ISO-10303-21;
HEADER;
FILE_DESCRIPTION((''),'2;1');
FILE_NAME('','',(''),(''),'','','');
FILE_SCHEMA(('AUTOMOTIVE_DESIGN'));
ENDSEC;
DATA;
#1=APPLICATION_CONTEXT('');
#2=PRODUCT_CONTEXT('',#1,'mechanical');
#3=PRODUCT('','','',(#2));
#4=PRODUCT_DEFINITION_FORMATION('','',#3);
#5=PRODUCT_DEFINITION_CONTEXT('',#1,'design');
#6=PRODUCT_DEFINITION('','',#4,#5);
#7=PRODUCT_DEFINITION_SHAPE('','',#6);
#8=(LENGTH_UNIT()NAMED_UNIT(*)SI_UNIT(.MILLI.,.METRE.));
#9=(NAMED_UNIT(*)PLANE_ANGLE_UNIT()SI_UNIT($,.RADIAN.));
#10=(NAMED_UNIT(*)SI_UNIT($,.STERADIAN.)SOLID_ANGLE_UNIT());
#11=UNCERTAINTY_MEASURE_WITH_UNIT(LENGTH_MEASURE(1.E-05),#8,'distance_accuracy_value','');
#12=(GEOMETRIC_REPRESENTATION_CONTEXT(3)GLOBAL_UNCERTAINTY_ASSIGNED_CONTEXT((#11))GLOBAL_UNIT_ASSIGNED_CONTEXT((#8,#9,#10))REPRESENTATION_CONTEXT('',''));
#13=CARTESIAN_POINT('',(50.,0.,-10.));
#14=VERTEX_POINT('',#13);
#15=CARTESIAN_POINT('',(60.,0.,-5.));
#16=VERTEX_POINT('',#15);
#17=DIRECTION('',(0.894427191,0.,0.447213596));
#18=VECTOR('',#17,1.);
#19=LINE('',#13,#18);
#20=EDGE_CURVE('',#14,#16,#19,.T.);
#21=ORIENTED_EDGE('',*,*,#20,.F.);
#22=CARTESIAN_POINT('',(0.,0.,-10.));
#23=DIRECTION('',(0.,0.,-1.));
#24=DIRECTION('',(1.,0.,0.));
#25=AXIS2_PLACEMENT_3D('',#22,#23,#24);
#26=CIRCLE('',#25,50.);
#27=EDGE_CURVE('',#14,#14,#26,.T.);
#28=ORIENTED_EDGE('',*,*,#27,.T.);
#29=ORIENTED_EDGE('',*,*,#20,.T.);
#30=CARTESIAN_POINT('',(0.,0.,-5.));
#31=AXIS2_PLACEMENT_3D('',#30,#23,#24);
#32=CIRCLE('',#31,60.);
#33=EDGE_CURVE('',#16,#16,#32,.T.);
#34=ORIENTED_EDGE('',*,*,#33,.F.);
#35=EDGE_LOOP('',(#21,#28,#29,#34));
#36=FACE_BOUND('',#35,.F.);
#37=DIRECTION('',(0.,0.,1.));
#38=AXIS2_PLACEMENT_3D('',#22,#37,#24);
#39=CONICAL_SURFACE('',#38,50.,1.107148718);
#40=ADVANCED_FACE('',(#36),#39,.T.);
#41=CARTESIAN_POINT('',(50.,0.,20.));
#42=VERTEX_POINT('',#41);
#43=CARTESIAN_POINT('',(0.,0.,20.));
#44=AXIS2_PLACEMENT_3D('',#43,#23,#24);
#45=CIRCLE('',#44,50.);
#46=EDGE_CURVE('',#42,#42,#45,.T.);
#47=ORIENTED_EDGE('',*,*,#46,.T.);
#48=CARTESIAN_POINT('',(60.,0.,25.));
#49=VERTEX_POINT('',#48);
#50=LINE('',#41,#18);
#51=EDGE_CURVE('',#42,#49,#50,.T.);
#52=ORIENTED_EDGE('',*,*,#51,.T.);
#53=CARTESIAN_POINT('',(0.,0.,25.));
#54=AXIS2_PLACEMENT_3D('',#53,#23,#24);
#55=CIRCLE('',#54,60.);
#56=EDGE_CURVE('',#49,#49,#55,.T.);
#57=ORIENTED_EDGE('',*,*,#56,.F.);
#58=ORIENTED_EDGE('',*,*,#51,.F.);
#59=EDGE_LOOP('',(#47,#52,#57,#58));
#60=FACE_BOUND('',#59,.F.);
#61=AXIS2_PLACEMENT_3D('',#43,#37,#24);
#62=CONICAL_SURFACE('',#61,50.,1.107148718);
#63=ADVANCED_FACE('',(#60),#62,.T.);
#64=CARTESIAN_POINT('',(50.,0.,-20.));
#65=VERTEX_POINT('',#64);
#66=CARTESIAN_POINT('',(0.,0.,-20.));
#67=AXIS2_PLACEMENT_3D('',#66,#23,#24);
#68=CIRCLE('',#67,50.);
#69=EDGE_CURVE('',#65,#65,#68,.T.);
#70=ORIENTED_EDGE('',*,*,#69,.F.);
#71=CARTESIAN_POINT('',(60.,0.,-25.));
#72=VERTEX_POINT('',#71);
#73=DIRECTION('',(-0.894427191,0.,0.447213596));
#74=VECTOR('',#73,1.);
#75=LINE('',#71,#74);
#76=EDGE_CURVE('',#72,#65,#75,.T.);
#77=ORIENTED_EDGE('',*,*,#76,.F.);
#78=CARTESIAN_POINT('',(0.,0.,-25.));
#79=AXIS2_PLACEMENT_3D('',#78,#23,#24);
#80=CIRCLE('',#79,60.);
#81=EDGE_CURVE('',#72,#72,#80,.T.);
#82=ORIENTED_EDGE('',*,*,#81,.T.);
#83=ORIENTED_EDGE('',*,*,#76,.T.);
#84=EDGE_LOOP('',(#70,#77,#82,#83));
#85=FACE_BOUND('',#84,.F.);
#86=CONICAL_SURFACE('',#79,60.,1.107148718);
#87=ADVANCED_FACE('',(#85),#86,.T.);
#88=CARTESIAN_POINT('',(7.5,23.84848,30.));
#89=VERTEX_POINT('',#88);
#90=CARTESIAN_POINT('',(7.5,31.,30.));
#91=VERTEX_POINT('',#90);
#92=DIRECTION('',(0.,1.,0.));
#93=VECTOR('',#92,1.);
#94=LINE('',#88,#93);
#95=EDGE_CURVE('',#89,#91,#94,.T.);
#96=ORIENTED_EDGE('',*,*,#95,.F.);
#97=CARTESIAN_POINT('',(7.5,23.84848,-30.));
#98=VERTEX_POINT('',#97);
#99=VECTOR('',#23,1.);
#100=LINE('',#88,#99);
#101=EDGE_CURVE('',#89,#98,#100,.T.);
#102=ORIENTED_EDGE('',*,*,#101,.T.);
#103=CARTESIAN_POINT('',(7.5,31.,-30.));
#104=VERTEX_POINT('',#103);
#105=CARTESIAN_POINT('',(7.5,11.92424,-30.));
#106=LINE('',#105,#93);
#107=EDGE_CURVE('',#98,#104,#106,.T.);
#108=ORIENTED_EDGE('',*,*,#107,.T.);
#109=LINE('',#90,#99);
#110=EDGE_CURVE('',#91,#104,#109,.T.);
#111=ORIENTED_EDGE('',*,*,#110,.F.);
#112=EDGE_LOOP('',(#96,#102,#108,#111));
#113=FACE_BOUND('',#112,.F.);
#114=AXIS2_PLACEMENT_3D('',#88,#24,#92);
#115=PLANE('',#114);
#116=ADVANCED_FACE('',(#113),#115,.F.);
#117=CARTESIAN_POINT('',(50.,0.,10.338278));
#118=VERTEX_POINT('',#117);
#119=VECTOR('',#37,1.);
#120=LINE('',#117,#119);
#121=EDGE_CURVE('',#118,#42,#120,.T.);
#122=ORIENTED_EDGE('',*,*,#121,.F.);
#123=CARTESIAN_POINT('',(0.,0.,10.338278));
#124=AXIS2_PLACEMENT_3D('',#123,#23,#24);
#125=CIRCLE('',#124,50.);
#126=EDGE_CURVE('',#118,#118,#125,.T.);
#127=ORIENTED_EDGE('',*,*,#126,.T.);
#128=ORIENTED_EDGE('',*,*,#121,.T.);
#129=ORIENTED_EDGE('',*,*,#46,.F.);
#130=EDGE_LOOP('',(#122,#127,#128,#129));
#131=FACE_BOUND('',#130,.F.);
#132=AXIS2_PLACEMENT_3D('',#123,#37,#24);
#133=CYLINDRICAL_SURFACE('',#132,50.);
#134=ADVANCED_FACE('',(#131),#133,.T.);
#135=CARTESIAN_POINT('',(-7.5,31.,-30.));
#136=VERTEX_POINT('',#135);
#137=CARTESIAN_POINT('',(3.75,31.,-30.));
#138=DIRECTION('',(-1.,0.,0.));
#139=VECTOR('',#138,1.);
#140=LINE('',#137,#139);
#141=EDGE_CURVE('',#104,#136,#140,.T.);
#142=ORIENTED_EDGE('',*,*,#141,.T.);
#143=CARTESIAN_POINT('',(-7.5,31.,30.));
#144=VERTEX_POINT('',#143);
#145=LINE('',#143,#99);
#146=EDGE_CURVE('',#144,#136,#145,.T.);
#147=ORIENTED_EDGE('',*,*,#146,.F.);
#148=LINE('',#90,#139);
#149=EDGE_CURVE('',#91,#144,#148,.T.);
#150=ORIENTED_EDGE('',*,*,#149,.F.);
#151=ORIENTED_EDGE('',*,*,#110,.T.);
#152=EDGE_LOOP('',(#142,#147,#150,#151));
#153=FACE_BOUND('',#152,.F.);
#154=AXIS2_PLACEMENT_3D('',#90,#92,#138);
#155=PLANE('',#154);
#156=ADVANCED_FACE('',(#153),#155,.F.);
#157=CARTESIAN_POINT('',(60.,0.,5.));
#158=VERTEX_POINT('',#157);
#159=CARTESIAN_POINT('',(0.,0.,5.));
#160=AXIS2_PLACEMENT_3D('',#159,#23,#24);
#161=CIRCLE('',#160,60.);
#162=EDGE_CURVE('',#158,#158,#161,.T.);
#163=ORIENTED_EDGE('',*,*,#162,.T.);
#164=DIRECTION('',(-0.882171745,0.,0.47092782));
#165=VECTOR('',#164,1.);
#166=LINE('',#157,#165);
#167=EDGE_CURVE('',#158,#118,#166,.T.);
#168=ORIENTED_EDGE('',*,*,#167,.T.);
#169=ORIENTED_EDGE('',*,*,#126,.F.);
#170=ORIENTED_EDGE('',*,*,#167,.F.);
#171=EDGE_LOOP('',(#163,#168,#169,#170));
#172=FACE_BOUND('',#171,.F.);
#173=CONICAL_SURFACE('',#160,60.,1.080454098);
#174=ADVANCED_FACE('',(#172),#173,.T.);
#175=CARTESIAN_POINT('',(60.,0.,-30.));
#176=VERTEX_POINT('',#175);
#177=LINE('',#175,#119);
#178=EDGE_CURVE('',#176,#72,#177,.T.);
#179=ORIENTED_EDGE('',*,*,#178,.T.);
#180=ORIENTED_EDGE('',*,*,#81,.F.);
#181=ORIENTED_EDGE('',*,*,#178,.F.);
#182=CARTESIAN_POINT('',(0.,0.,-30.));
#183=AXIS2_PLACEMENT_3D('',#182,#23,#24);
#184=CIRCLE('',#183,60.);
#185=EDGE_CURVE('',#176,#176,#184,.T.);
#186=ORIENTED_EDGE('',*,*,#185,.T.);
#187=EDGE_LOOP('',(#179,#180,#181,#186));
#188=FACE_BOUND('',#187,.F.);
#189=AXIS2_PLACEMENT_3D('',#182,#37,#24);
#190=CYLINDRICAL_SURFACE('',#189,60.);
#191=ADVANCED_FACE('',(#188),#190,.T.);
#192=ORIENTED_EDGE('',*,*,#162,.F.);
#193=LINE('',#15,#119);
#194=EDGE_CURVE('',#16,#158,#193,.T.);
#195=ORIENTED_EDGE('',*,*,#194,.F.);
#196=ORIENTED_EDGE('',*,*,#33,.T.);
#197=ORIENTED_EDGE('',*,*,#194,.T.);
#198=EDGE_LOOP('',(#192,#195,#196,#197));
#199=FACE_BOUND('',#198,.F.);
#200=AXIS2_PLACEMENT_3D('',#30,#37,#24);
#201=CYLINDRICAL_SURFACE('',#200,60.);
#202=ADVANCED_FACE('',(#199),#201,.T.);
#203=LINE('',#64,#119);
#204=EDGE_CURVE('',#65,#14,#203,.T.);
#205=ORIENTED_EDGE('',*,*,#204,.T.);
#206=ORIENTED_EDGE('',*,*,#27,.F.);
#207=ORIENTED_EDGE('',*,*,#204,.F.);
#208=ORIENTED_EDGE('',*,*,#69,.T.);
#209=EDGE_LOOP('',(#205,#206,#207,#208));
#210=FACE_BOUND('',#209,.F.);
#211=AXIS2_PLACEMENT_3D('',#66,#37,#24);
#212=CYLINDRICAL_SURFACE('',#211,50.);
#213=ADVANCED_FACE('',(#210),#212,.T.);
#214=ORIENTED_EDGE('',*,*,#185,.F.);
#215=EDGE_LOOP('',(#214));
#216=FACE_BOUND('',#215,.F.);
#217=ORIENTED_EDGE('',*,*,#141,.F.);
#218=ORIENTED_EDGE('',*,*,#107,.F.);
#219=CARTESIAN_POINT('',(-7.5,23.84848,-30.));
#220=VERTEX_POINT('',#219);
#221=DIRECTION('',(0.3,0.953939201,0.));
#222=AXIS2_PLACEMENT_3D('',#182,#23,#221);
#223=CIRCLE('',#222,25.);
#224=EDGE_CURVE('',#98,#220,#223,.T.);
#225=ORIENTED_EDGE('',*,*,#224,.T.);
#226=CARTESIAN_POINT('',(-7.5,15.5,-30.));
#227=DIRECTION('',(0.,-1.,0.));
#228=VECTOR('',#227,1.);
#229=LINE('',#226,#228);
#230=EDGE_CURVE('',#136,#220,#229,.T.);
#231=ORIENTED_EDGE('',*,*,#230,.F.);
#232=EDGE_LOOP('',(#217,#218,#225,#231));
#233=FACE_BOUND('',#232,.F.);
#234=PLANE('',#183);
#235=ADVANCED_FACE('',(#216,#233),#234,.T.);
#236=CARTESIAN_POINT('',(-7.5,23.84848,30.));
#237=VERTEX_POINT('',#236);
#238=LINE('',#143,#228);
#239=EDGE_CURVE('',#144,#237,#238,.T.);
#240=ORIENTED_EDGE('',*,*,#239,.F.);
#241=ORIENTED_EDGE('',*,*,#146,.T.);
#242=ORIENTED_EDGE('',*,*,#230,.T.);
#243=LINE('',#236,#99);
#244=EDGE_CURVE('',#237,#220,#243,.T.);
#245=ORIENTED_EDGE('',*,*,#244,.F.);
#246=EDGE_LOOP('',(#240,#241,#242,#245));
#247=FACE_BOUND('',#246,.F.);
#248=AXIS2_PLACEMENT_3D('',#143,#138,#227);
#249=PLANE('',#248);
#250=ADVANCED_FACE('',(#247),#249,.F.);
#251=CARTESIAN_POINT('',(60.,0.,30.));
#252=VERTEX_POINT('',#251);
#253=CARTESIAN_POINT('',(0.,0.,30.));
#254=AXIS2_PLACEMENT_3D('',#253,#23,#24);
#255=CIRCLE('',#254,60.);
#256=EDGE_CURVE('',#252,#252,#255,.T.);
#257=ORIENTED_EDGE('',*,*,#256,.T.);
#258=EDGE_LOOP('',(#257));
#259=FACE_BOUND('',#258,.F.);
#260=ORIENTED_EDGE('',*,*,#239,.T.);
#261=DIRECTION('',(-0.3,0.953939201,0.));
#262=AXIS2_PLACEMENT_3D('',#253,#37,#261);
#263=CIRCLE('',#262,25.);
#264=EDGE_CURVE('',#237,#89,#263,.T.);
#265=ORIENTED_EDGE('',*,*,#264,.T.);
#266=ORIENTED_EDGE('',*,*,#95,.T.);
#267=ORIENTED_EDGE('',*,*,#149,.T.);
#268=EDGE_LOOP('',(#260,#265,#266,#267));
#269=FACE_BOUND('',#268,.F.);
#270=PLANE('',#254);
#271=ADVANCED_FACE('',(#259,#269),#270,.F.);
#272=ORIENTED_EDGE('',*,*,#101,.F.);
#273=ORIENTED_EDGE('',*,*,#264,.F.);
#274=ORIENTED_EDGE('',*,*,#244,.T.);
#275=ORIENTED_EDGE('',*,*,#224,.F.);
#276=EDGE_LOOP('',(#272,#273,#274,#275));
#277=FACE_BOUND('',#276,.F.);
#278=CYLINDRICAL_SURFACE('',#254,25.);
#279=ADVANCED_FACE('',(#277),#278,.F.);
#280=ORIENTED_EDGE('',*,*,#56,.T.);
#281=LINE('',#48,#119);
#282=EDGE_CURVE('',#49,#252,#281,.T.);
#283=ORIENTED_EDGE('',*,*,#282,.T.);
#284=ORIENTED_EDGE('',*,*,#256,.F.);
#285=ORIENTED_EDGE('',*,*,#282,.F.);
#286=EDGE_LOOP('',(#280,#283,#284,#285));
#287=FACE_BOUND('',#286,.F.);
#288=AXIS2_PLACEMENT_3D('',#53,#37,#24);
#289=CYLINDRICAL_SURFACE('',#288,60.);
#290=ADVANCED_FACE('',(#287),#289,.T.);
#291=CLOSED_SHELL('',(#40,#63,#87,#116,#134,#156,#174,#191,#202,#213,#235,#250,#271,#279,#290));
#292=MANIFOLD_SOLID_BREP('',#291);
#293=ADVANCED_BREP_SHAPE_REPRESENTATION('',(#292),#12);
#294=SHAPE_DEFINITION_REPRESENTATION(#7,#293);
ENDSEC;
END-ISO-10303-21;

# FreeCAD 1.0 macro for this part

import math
import FreeCAD as App
import Part
import Sketcher
Q = App.Units.Quantity

doc = App.newDocument("Part")
body = doc.addObject("PartDesign::Body", "Body")

sketch1 = body.newObject("Sketcher::SketchObject", "Sketch")
sketch1.AttachmentSupport = (doc.getObject("XZ_Plane"), [""])
sketch1.MapMode = "FlatFace"
sketch1.addGeometry(Part.LineSegment(App.Vector(25, 30, 0), App.Vector(25, -30, 0)), False)
sketch1.addGeometry(Part.LineSegment(App.Vector(25, -30, 0), App.Vector(60, -30, 0)), False)
sketch1.addGeometry(Part.LineSegment(App.Vector(60, -30, 0), App.Vector(60, -25, 0)), False)
sketch1.addGeometry(Part.LineSegment(App.Vector(60, -25, 0), App.Vector(50, -20, 0)), False)
sketch1.addGeometry(Part.LineSegment(App.Vector(50, -20, 0), App.Vector(50, -10, 0)), False)
sketch1.addGeometry(Part.LineSegment(App.Vector(50, -10, 0), App.Vector(60, -5, 0)), False)
sketch1.addGeometry(Part.LineSegment(App.Vector(60, -5, 0), App.Vector(60, 5, 0)), False)
sketch1.addGeometry(Part.LineSegment(App.Vector(60, 5, 0), App.Vector(50, 10, 0)), False)
sketch1.addGeometry(Part.LineSegment(App.Vector(50, 10, 0), App.Vector(50, 20, 0)), False)
sketch1.addGeometry(Part.LineSegment(App.Vector(50, 20, 0), App.Vector(60, 25, 0)), False)
sketch1.addGeometry(Part.LineSegment(App.Vector(60, 25, 0), App.Vector(60, 30, 0)), False)
sketch1.addGeometry(Part.LineSegment(App.Vector(60, 30, 0), App.Vector(25, 30, 0)), False)
sketch1.addConstraint(Sketcher.Constraint("Coincident", 0, 2, 1, 1))
sketch1.addConstraint(Sketcher.Constraint("Coincident", 1, 2, 2, 1))
sketch1.addConstraint(Sketcher.Constraint("Coincident", 2, 2, 3, 1))
sketch1.addConstraint(Sketcher.Constraint("Coincident", 3, 2, 4, 1))
sketch1.addConstraint(Sketcher.Constraint("Coincident", 4, 2, 5, 1))
sketch1.addConstraint(Sketcher.Constraint("Coincident", 5, 2, 6, 1))
sketch1.addConstraint(Sketcher.Constraint("Coincident", 6, 2, 7, 1))
sketch1.addConstraint(Sketcher.Constraint("Coincident", 7, 2, 8, 1))
sketch1.addConstraint(Sketcher.Constraint("Coincident", 8, 2, 9, 1))
sketch1.addConstraint(Sketcher.Constraint("Coincident", 9, 2, 10, 1))
sketch1.addConstraint(Sketcher.Constraint("Coincident", 10, 2, 11, 1))
sketch1.addConstraint(Sketcher.Constraint("Coincident", 11, 2, 0, 1))
sketch1.addConstraint(Sketcher.Constraint("Vertical", 0))
sketch1.addConstraint(Sketcher.Constraint("Horizontal", 1))
sketch1.addConstraint(Sketcher.Constraint("Vertical", 2))
sketch1.addConstraint(Sketcher.Constraint("Vertical", 4))
sketch1.addConstraint(Sketcher.Constraint("Vertical", 6))
sketch1.addConstraint(Sketcher.Constraint("Vertical", 8))
sketch1.addConstraint(Sketcher.Constraint("Vertical", 10))
sketch1.addConstraint(Sketcher.Constraint("Horizontal", 11))
sketch1.addConstraint(Sketcher.Constraint("Symmetric", 3, 2, 8, 2, -1))
sketch1.addConstraint(Sketcher.Constraint("Symmetric", 2, 2, 9, 2, -1))
sketch1.addConstraint(Sketcher.Constraint("Parallel", 5, 9))
sketch1.addConstraint(Sketcher.Constraint("Vertical", 2, 2, 5, 2))
sketch1.addConstraint(Sketcher.Constraint("Equal", 4, 6))
sketch1.addConstraint(Sketcher.Constraint("Equal", 2, 10))
sketch1.addConstraint(Sketcher.Constraint("DistanceX", 1, 1, 1, 2, Q("35 mm")))
sketch1.addConstraint(Sketcher.Constraint("DistanceY", 0, 2, 0, 1, Q("60 mm")))
sketch1.addConstraint(Sketcher.Constraint("DistanceY", 2, 1, 2, 2, Q("5 mm")))
sketch1.addConstraint(Sketcher.Constraint("DistanceY", 4, 1, 4, 2, Q("10 mm")))
sketch1.addConstraint(Sketcher.Constraint("DistanceX", -1, 1, 0, 2, Q("25 mm")))
sketch1.addConstraint(Sketcher.Constraint("DistanceX", -1, 1, 3, 2, Q("50 mm")))
sketch1.addConstraint(Sketcher.Constraint("DistanceY", 3, 2, -1, 1, Q("20 mm")))
sketch1.addConstraint(Sketcher.Constraint("DistanceY", 8, 1, 8, 2, Q("9.661722 mm")))
revolution = body.newObject("PartDesign::Revolution", "Revolution")
revolution.Profile = sketch1
revolution.ReferenceAxis = (sketch1, ["V_Axis"])
revolution.Angle = 360

sketch2 = body.newObject("Sketcher::SketchObject", "Sketch001")
sketch2.AttachmentSupport = (doc.getObject("XY_Plane"), [""])
sketch2.MapMode = "FlatFace"
sketch2.AttachmentOffset = App.Placement(App.Vector(0, 0, 30), App.Rotation())
sketch2.addGeometry(Part.LineSegment(App.Vector(8, 31, 0), App.Vector(-8, 31, 0)), False)
sketch2.addGeometry(Part.LineSegment(App.Vector(-8, 31, 0), App.Vector(-8, 24, 0)), False)
sketch2.addGeometry(Part.ArcOfCircle(Part.Circle(App.Vector(0, 0, 0), App.Vector(0, 0, 1), 25), math.radians(73), math.radians(107)), False)
sketch2.addGeometry(Part.LineSegment(App.Vector(8, 24, 0), App.Vector(8, 31, 0)), False)
sketch2.addConstraint(Sketcher.Constraint("Coincident", 0, 2, 1, 1))
sketch2.addConstraint(Sketcher.Constraint("Coincident", 1, 2, 2, 2))
sketch2.addConstraint(Sketcher.Constraint("Coincident", 2, 1, 3, 1))
sketch2.addConstraint(Sketcher.Constraint("Coincident", 3, 2, 0, 1))
sketch2.addConstraint(Sketcher.Constraint("Horizontal", 0))
sketch2.addConstraint(Sketcher.Constraint("Vertical", 1))
sketch2.addConstraint(Sketcher.Constraint("Vertical", 3))
sketch2.addConstraint(Sketcher.Constraint("Coincident", 2, 3, -1, 1))
sketch2.addConstraint(Sketcher.Constraint("Horizontal", 1, 2, 2, 1))
sketch2.addConstraint(Sketcher.Constraint("Radius", 2, Q("25 mm")))
sketch2.addConstraint(Sketcher.Constraint("DistanceX", 0, 2, 0, 1, Q("15 mm")))
sketch2.addConstraint(Sketcher.Constraint("DistanceY", -1, 1, 0, 2, Q("31 mm")))
pocket1 = body.newObject("PartDesign::Pocket", "Pocket")
pocket1.Profile = sketch2
pocket1.Type = "ThroughAll"

doc.recompute()
